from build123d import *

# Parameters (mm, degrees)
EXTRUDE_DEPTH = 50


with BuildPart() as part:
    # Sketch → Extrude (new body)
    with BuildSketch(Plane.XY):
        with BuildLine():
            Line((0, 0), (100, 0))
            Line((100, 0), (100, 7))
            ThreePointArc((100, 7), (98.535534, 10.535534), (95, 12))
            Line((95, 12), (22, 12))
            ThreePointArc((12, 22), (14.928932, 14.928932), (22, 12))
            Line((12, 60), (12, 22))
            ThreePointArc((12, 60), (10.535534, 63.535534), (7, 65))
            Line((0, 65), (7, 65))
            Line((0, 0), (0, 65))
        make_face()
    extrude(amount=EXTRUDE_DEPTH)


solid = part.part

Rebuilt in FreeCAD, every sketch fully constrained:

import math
import FreeCAD as App
import Part
import Sketcher

V = App.Vector
Q = App.Units.Quantity

doc = App.newDocument("Part")
body = doc.addObject("PartDesign::Body", "Body")

# Sketch on XY plane
sketch1 = doc.addObject("Sketcher::SketchObject", "Sketch")
body.addObject(sketch1)
sketch1.AttachmentSupport = (doc.XY_Plane, [""])
sketch1.MapMode = "FlatFace"
sketch1.addGeometry(Part.LineSegment(V(0, 0, 0), V(100, 0, 0)), False)
sketch1.addGeometry(Part.LineSegment(V(100, 0, 0), V(100, 7, 0)), False)
sketch1.addGeometry(Part.ArcOfCircle(Part.Circle(V(95, 7, 0), V(0, 0, 1), 5), math.radians(0), math.radians(90)), False)
sketch1.addGeometry(Part.LineSegment(V(95, 12, 0), V(22, 12, 0)), False)
sketch1.addGeometry(Part.ArcOfCircle(Part.Circle(V(22, 22, 0), V(0, 0, 1), 10), math.radians(180), math.radians(270)), False)
sketch1.addGeometry(Part.LineSegment(V(12, 22, 0), V(12, 60, 0)), False)
sketch1.addGeometry(Part.ArcOfCircle(Part.Circle(V(7, 60, 0), V(0, 0, 1), 5), math.radians(0), math.radians(90)), False)
sketch1.addGeometry(Part.LineSegment(V(7, 65, 0), V(0, 65, 0)), False)
sketch1.addGeometry(Part.LineSegment(V(0, 65, 0), V(0, 0, 0)), False)
sketch1.addConstraint(Sketcher.Constraint("Coincident", 0, 2, 1, 1))
sketch1.addConstraint(Sketcher.Constraint("Tangent", 1, 2, 2, 1))
sketch1.addConstraint(Sketcher.Constraint("Tangent", 2, 2, 3, 1))
sketch1.addConstraint(Sketcher.Constraint("Tangent", 3, 2, 4, 2))
sketch1.addConstraint(Sketcher.Constraint("Tangent", 4, 1, 5, 1))
sketch1.addConstraint(Sketcher.Constraint("Tangent", 5, 2, 6, 1))
sketch1.addConstraint(Sketcher.Constraint("Tangent", 6, 2, 7, 1))
sketch1.addConstraint(Sketcher.Constraint("Coincident", 7, 2, 8, 1))
sketch1.addConstraint(Sketcher.Constraint("Coincident", 8, 2, 0, 1))
sketch1.addConstraint(Sketcher.Constraint("Horizontal", 0))
sketch1.addConstraint(Sketcher.Constraint("Vertical", 1))
sketch1.addConstraint(Sketcher.Constraint("Horizontal", 3))
sketch1.addConstraint(Sketcher.Constraint("Vertical", 5))
sketch1.addConstraint(Sketcher.Constraint("Horizontal", 7))
sketch1.addConstraint(Sketcher.Constraint("Vertical", 8))
sketch1.addConstraint(Sketcher.Constraint("Coincident", 8, 2, -1, 1))
sketch1.addConstraint(Sketcher.Constraint("Equal", 2, 6))
sketch1.addConstraint(Sketcher.Constraint("Equal", 7, 1))
sketch1.addConstraint(Sketcher.Constraint("Radius", 2, Q("5 mm")))
sketch1.addConstraint(Sketcher.Constraint("Radius", 4, Q("9.999999 mm")))
sketch1.addConstraint(Sketcher.Constraint("DistanceX", 0, 1, 0, 2, Q("100 mm")))
sketch1.addConstraint(Sketcher.Constraint("DistanceX", 3, 2, 3, 1, Q("73 mm")))
sketch1.addConstraint(Sketcher.Constraint("DistanceY", 5, 1, 5, 2, Q("38 mm")))
pad1 = doc.addObject("PartDesign::Pad", "Pad")
body.addObject(pad1)
pad1.Profile = sketch1
pad1.Length = 50

doc.recompute()
